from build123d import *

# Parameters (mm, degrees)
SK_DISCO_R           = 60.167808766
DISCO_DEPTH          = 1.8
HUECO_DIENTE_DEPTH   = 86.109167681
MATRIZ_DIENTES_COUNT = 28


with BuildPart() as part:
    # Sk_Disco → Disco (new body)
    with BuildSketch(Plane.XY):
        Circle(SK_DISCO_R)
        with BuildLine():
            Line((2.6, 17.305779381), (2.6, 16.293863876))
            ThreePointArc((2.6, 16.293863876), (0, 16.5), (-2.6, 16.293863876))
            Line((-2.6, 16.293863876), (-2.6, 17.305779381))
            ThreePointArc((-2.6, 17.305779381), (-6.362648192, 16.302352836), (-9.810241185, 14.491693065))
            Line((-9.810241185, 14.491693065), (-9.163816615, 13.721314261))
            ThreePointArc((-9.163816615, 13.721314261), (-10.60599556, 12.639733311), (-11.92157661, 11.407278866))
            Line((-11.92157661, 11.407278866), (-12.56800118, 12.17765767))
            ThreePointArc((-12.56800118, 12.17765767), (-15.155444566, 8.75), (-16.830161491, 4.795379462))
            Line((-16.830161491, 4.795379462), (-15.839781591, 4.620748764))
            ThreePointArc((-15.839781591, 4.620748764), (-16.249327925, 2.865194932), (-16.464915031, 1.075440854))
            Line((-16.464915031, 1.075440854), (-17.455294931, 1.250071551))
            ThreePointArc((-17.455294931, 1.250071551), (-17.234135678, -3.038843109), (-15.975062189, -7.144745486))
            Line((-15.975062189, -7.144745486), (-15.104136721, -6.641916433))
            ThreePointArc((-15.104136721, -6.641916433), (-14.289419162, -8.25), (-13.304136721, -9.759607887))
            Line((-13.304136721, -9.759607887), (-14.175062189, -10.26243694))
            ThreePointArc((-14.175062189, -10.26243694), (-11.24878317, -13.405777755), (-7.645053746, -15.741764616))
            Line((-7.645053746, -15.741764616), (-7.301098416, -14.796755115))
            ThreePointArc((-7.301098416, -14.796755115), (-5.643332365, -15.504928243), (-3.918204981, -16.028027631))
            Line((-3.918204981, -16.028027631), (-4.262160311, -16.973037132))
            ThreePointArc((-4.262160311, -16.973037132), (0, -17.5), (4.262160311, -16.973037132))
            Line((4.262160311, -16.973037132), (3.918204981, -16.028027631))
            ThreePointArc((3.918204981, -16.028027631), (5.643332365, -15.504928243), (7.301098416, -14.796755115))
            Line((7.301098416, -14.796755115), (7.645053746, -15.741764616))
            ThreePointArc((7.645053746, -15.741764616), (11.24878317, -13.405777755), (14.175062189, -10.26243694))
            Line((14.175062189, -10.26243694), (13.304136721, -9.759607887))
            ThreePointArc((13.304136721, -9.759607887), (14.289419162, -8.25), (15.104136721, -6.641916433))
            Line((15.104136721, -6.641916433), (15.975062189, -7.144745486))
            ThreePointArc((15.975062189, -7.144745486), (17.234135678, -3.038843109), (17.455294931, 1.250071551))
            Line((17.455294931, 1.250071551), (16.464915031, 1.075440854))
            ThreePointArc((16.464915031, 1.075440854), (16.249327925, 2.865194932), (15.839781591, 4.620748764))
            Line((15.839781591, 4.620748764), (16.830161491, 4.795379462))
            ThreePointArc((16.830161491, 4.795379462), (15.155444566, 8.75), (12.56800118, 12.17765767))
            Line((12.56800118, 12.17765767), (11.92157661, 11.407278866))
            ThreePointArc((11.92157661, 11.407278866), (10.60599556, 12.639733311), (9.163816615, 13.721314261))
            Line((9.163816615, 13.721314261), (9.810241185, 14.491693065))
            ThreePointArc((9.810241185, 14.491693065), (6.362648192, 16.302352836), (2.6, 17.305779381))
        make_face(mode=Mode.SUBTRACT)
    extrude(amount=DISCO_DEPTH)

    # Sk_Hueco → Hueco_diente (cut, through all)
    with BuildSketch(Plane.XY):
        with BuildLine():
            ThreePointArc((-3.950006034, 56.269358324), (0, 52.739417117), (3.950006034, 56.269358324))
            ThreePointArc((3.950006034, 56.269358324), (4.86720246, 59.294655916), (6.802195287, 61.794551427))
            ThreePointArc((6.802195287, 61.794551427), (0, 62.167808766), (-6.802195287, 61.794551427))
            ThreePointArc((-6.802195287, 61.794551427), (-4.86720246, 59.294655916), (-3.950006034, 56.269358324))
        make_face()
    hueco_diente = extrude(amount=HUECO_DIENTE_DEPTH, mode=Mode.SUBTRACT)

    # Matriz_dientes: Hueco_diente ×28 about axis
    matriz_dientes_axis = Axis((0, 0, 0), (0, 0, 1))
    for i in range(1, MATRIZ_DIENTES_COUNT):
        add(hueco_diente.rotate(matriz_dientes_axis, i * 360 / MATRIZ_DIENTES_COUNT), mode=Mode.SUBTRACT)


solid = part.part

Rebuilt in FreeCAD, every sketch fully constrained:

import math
import FreeCAD as App
import Part
import Sketcher
from FreeCAD import Vector
Q = App.Units.Quantity

doc = App.newDocument("Part")
params = doc.addObject("Spreadsheet::Sheet", "Params")
for row, (alias, value) in enumerate([
    ("sketch1_radius", "17.5 mm"),
    ("sketch1_radius2", "16.5 mm"),
    ("pad1_length", "1.8 mm"),
], start=1):
    params.set(f"A{row}", alias)
    params.set(f"B{row}", "=" + value)
    params.setAlias(f"B{row}", alias)

body = doc.addObject("PartDesign::Body", "Body")

sketch1 = doc.addObject("Sketcher::SketchObject", "Sketch")
body.addObject(sketch1)
sketch1.AttachmentSupport = (doc.XY_Plane, [""])
sketch1.MapMode = "FlatFace"
sketch1.addGeometry([
    Part.Circle(Vector(0, 0, 0), Vector(0, 0, 1), 60.167809),
    Part.LineSegment(Vector(2.6, 16.293864, 0), Vector(2.6, 17.305779, 0)),
    Part.ArcOfCircle(Part.Circle(Vector(0, 0, 0), Vector(0, 0, 1), 17.5), math.radians(55.903721), math.radians(81.455852)),
    Part.LineSegment(Vector(9.810241, 14.491693, 0), Vector(9.163817, 13.721314, 0)),
    Part.ArcOfCircle(Part.Circle(Vector(0, 0, 0), Vector(0, 0, 1), 16.5), math.radians(43.737087), math.radians(56.262913)),
    Part.LineSegment(Vector(11.921577, 11.407279, 0), Vector(12.568001, 12.177658, 0)),
    Part.ArcOfCircle(Part.Circle(Vector(0, 0, 0), Vector(0, 0, 1), 17.5), math.radians(15.903721), math.radians(44.096279)),
    Part.LineSegment(Vector(16.830161, 4.795379, 0), Vector(15.839782, 4.620749, 0)),
    Part.ArcOfCircle(Part.Circle(Vector(0, 0, 0), Vector(0, 0, 1), 16.5), math.radians(3.737087), math.radians(16.262913)),
    Part.LineSegment(Vector(16.464915, 1.075441, 0), Vector(17.455295, 1.250072, 0)),
    Part.ArcOfCircle(Part.Circle(Vector(0, 0, 0), Vector(0, 0, 1), 17.5), math.radians(-24.096279), math.radians(4.096279)),
    Part.LineSegment(Vector(15.975062, -7.144745, 0), Vector(15.104137, -6.641916, 0)),
    Part.ArcOfCircle(Part.Circle(Vector(0, 0, 0), Vector(0, 0, 1), 16.5), math.radians(-36.262913), math.radians(-23.737087)),
    Part.LineSegment(Vector(13.304137, -9.759608, 0), Vector(14.175062, -10.262437, 0)),
    Part.ArcOfCircle(Part.Circle(Vector(0, 0, 0), Vector(0, 0, 1), 17.5), math.radians(-64.096279), math.radians(-35.903721)),
    Part.LineSegment(Vector(7.645054, -15.741765, 0), Vector(7.301098, -14.796755, 0)),
    Part.ArcOfCircle(Part.Circle(Vector(0, 0, 0), Vector(0, 0, 1), 16.5), math.radians(-76.262913), math.radians(-63.737087)),
    Part.LineSegment(Vector(3.918205, -16.028028, 0), Vector(4.26216, -16.973037, 0)),
    Part.ArcOfCircle(Part.Circle(Vector(0, 0, 0), Vector(0, 0, 1), 17.5), math.radians(-104.096279), math.radians(-75.903721)),
    Part.LineSegment(Vector(-4.26216, -16.973037, 0), Vector(-3.918205, -16.028028, 0)),
    Part.ArcOfCircle(Part.Circle(Vector(0, 0, 0), Vector(0, 0, 1), 16.5), math.radians(-116.262913), math.radians(-103.737087)),
    Part.LineSegment(Vector(-7.301098, -14.796755, 0), Vector(-7.645054, -15.741765, 0)),
    Part.ArcOfCircle(Part.Circle(Vector(0, 0, 0), Vector(0, 0, 1), 17.5), math.radians(-144.096279), math.radians(-115.903721)),
    Part.LineSegment(Vector(-14.175062, -10.262437, 0), Vector(-13.304137, -9.759608, 0)),
    Part.ArcOfCircle(Part.Circle(Vector(0, 0, 0), Vector(0, 0, 1), 16.5), math.radians(-156.262913), math.radians(-143.737087)),
    Part.LineSegment(Vector(-15.104137, -6.641916, 0), Vector(-15.975062, -7.144745, 0)),
    Part.ArcOfCircle(Part.Circle(Vector(0, 0, 0), Vector(0, 0, 1), 17.5), math.radians(175.903721), math.radians(204.096279)),
    Part.LineSegment(Vector(-17.455295, 1.250072, 0), Vector(-16.464915, 1.075441, 0)),
    Part.ArcOfCircle(Part.Circle(Vector(0, 0, 0), Vector(0, 0, 1), 16.5), math.radians(163.737087), math.radians(176.262913)),
    Part.LineSegment(Vector(-15.839782, 4.620749, 0), Vector(-16.830161, 4.795379, 0)),
    Part.ArcOfCircle(Part.Circle(Vector(0, 0, 0), Vector(0, 0, 1), 17.5), math.radians(135.903721), math.radians(164.096279)),
    Part.LineSegment(Vector(-12.568001, 12.177658, 0), Vector(-11.921577, 11.407279, 0)),
    Part.ArcOfCircle(Part.Circle(Vector(0, 0, 0), Vector(0, 0, 1), 16.5), math.radians(123.737087), math.radians(136.262913)),
    Part.LineSegment(Vector(-9.163817, 13.721314, 0), Vector(-9.810241, 14.491693, 0)),
    Part.ArcOfCircle(Part.Circle(Vector(0, 0, 0), Vector(0, 0, 1), 17.5), math.radians(98.544148), math.radians(124.096279)),
    Part.LineSegment(Vector(-2.6, 17.305779, 0), Vector(-2.6, 16.293864, 0)),
    Part.ArcOfCircle(Part.Circle(Vector(0, 0, 0), Vector(0, 0, 1), 16.5), math.radians(80.933788), math.radians(99.066212)),
], False)
sketch1.addConstraint([
    Sketcher.Constraint("Coincident", 1, 2, 2, 2),
    Sketcher.Constraint("Coincident", 2, 1, 3, 1),
    Sketcher.Constraint("Coincident", 3, 2, 4, 2),
    Sketcher.Constraint("Coincident", 4, 1, 5, 1),
    Sketcher.Constraint("Coincident", 5, 2, 6, 2),
    Sketcher.Constraint("Coincident", 6, 1, 7, 1),
    Sketcher.Constraint("Coincident", 7, 2, 8, 2),
    Sketcher.Constraint("Coincident", 8, 1, 9, 1),
    Sketcher.Constraint("Coincident", 9, 2, 10, 2),
    Sketcher.Constraint("Coincident", 10, 1, 11, 1),
    Sketcher.Constraint("Coincident", 11, 2, 12, 2),
    Sketcher.Constraint("Coincident", 12, 1, 13, 1),
    Sketcher.Constraint("Coincident", 13, 2, 14, 2),
    Sketcher.Constraint("Coincident", 14, 1, 15, 1),
    Sketcher.Constraint("Coincident", 15, 2, 16, 2),
    Sketcher.Constraint("Coincident", 16, 1, 17, 1),
    Sketcher.Constraint("Coincident", 17, 2, 18, 2),
    Sketcher.Constraint("Coincident", 18, 1, 19, 1),
    Sketcher.Constraint("Coincident", 19, 2, 20, 2),
    Sketcher.Constraint("Coincident", 20, 1, 21, 1),
    Sketcher.Constraint("Coincident", 21, 2, 22, 2),
    Sketcher.Constraint("Coincident", 22, 1, 23, 1),
    Sketcher.Constraint("Coincident", 23, 2, 24, 2),
    Sketcher.Constraint("Coincident", 24, 1, 25, 1),
    Sketcher.Constraint("Coincident", 25, 2, 26, 2),
    Sketcher.Constraint("Coincident", 26, 1, 27, 1),
    Sketcher.Constraint("Coincident", 27, 2, 28, 2),
    Sketcher.Constraint("Coincident", 28, 1, 29, 1),
    Sketcher.Constraint("Coincident", 29, 2, 30, 2),
    Sketcher.Constraint("Coincident", 30, 1, 31, 1),
    Sketcher.Constraint("Coincident", 31, 2, 32, 2),
    Sketcher.Constraint("Coincident", 32, 1, 33, 1),
    Sketcher.Constraint("Coincident", 33, 2, 34, 2),
    Sketcher.Constraint("Coincident", 34, 1, 35, 1),
    Sketcher.Constraint("Coincident", 35, 2, 36, 2),
    Sketcher.Constraint("Coincident", 36, 1, 1, 1),
    Sketcher.Constraint("Vertical", 1),
    Sketcher.Constraint("Vertical", 35),
    Sketcher.Constraint("Coincident", 0, 3, -1, 1),
    Sketcher.Constraint("Coincident", 2, 3, -1, 1),
    Sketcher.Constraint("Coincident", 4, 3, -1, 1),
    Sketcher.Constraint("Coincident", 6, 3, -1, 1),
    Sketcher.Constraint("Coincident", 8, 3, -1, 1),
    Sketcher.Constraint("Coincident", 10, 3, -1, 1),
    Sketcher.Constraint("Coincident", 12, 3, -1, 1),
    Sketcher.Constraint("Coincident", 14, 3, -1, 1),
    Sketcher.Constraint("Coincident", 16, 3, -1, 1),
    Sketcher.Constraint("Coincident", 18, 3, -1, 1),
    Sketcher.Constraint("Coincident", 20, 3, -1, 1),
    Sketcher.Constraint("Coincident", 22, 3, -1, 1),
    Sketcher.Constraint("Coincident", 24, 3, -1, 1),
    Sketcher.Constraint("Coincident", 26, 3, -1, 1),
    Sketcher.Constraint("Coincident", 28, 3, -1, 1),
    Sketcher.Constraint("Coincident", 30, 3, -1, 1),
    Sketcher.Constraint("Coincident", 32, 3, -1, 1),
    Sketcher.Constraint("Coincident", 34, 3, -1, 1),
    Sketcher.Constraint("Coincident", 36, 3, -1, 1),
    Sketcher.Constraint("Equal", 2, 6),
    Sketcher.Constraint("Equal", 4, 8),
    Sketcher.Constraint("Equal", 6, 10),
    Sketcher.Constraint("Equal", 8, 12),
    Sketcher.Constraint("Equal", 10, 14),
    Sketcher.Constraint("Equal", 12, 16),
    Sketcher.Constraint("Equal", 14, 18),
    Sketcher.Constraint("Equal", 16, 20),
    Sketcher.Constraint("Equal", 18, 22),
    Sketcher.Constraint("Equal", 20, 24),
    Sketcher.Constraint("Equal", 22, 26),
    Sketcher.Constraint("Equal", 24, 28),
    Sketcher.Constraint("Equal", 26, 30),
    Sketcher.Constraint("Equal", 28, 32),
    Sketcher.Constraint("Equal", 30, 34),
    Sketcher.Constraint("Equal", 32, 36),
    Sketcher.Constraint("Parallel", 3, 5),
    Sketcher.Constraint("Parallel", 7, 9),
    Sketcher.Constraint("Parallel", 11, 13),
    Sketcher.Constraint("Parallel", 15, 17),
    Sketcher.Constraint("Parallel", 19, 21),
    Sketcher.Constraint("Parallel", 23, 25),
    Sketcher.Constraint("Parallel", 27, 29),
    Sketcher.Constraint("Parallel", 31, 33),
    Sketcher.Constraint("Horizontal", 17, 2, 18, 1),
    Sketcher.Constraint("Horizontal", 16, 1, 19, 2),
    Sketcher.Constraint("Horizontal", 15, 2, 20, 1),
    Sketcher.Constraint("Horizontal", 13, 2, 22, 1),
    Sketcher.Constraint("Horizontal", 12, 1, 23, 2),
    Sketcher.Constraint("Horizontal", 11, 2, 24, 1),
    Sketcher.Constraint("Horizontal", 9, 2, 26, 1),
    Sketcher.Constraint("Horizontal", 8, 1, 27, 2),
    Sketcher.Constraint("Horizontal", 7, 2, 28, 1),
    Sketcher.Constraint("Horizontal", 5, 2, 30, 1),
    Sketcher.Constraint("Horizontal", 4, 1, 31, 2),
    Sketcher.Constraint("Horizontal", 3, 2, 32, 1),
    Sketcher.Constraint("Horizontal", 1, 2, 34, 1),
    Sketcher.Constraint("Equal", 3, 5),
    Sketcher.Constraint("Equal", 5, 7),
    Sketcher.Constraint("Equal", 7, 9),
    Sketcher.Constraint("Equal", 9, 11),
    Sketcher.Constraint("Equal", 11, 13),
    Sketcher.Constraint("Equal", 13, 15),
    Sketcher.Constraint("Equal", 15, 17),
    Sketcher.Constraint("Radius", 2, 17.5),
    Sketcher.Constraint("Radius", 4, 16.5),
    Sketcher.Constraint("Angle", 3, Q("-130 deg")),
    Sketcher.Constraint("Angle", 7, Q("-170 deg")),
    Sketcher.Constraint("Angle", 11, Q("150 deg")),
    Sketcher.Constraint("Angle", 15, Q("110 deg")),
    Sketcher.Constraint("DistanceX", -1, 1, 1, 2, 2.6),
    Sketcher.Constraint("DistanceX", 12, 1, 11, 2, 1.8),
    Sketcher.Constraint("Diameter", 0, 120.335618),
])
sketch1.setExpression("Constraints[101]", "Params.sketch1_radius")
sketch1.setExpression("Constraints[102]", "Params.sketch1_radius2")
pad1 = doc.addObject("PartDesign::Pad", "Pad")
body.addObject(pad1)
pad1.Profile = sketch1
pad1.setExpression("Length", "Params.pad1_length")

sketch2 = doc.addObject("Sketcher::SketchObject", "Sketch001")
body.addObject(sketch2)
sketch2.AttachmentSupport = (doc.XY_Plane, [""])
sketch2.MapMode = "FlatFace"
sketch2.addGeometry([
    Part.ArcOfCircle(Part.Circle(Vector(0, 56.714417, 0), Vector(0, 0, 1), 3.975), math.radians(-173.571429), math.radians(-6.428571)),
    Part.ArcOfCircle(Part.Circle(Vector(12.620145, 55.292468, 0), Vector(0, 0, 1), 8.725), math.radians(131.821621), math.radians(173.571429)),
    Part.ArcOfCircle(Part.Circle(Vector(0, 0, 0), Vector(0, 0, 1), 62.167809), math.radians(83.718309), math.radians(96.281691)),
    Part.ArcOfCircle(Part.Circle(Vector(-12.620145, 55.292468, 0), Vector(0, 0, 1), 8.725), math.radians(6.428571), math.radians(48.178379)),
], False)
sketch2.addConstraint([
    Sketcher.Constraint("Tangent", 0, 2, 1, 2),
    Sketcher.Constraint("Coincident", 1, 1, 2, 1),
    Sketcher.Constraint("Coincident", 2, 2, 3, 2),
    Sketcher.Constraint("Tangent", 3, 1, 0, 1),
    Sketcher.Constraint("Coincident", 2, 3, -1, 1),
    Sketcher.Constraint("Equal", 1, 3),
    Sketcher.Constraint("Symmetric", 1, 3, 3, 3, -2),
    Sketcher.Constraint("Radius", 0, 3.975),
    Sketcher.Constraint("Radius", 1, 8.725),
    Sketcher.Constraint("Radius", 2, 62.167809),
    Sketcher.Constraint("DistanceX", 2, 2, 0, 2, 10.752201),
    Sketcher.Constraint("DistanceY", -1, 1, 1, 3, 55.292468),
])
pocket1 = doc.addObject("PartDesign::Pocket", "Pocket")
body.addObject(pocket1)
pocket1.Profile = sketch2
pocket1.Type = "ThroughAll"
pocket1.Reversed = True
doc.recompute()

polarpattern = doc.addObject("PartDesign::PolarPattern", "PolarPattern")
body.addObject(polarpattern)
polarpattern.Originals = [pocket1]
polarpattern.Axis = (doc.Z_Axis, [""])
polarpattern.Angle = 360
polarpattern.Occurrences = 28
body.Tip = polarpattern

doc.recompute()
